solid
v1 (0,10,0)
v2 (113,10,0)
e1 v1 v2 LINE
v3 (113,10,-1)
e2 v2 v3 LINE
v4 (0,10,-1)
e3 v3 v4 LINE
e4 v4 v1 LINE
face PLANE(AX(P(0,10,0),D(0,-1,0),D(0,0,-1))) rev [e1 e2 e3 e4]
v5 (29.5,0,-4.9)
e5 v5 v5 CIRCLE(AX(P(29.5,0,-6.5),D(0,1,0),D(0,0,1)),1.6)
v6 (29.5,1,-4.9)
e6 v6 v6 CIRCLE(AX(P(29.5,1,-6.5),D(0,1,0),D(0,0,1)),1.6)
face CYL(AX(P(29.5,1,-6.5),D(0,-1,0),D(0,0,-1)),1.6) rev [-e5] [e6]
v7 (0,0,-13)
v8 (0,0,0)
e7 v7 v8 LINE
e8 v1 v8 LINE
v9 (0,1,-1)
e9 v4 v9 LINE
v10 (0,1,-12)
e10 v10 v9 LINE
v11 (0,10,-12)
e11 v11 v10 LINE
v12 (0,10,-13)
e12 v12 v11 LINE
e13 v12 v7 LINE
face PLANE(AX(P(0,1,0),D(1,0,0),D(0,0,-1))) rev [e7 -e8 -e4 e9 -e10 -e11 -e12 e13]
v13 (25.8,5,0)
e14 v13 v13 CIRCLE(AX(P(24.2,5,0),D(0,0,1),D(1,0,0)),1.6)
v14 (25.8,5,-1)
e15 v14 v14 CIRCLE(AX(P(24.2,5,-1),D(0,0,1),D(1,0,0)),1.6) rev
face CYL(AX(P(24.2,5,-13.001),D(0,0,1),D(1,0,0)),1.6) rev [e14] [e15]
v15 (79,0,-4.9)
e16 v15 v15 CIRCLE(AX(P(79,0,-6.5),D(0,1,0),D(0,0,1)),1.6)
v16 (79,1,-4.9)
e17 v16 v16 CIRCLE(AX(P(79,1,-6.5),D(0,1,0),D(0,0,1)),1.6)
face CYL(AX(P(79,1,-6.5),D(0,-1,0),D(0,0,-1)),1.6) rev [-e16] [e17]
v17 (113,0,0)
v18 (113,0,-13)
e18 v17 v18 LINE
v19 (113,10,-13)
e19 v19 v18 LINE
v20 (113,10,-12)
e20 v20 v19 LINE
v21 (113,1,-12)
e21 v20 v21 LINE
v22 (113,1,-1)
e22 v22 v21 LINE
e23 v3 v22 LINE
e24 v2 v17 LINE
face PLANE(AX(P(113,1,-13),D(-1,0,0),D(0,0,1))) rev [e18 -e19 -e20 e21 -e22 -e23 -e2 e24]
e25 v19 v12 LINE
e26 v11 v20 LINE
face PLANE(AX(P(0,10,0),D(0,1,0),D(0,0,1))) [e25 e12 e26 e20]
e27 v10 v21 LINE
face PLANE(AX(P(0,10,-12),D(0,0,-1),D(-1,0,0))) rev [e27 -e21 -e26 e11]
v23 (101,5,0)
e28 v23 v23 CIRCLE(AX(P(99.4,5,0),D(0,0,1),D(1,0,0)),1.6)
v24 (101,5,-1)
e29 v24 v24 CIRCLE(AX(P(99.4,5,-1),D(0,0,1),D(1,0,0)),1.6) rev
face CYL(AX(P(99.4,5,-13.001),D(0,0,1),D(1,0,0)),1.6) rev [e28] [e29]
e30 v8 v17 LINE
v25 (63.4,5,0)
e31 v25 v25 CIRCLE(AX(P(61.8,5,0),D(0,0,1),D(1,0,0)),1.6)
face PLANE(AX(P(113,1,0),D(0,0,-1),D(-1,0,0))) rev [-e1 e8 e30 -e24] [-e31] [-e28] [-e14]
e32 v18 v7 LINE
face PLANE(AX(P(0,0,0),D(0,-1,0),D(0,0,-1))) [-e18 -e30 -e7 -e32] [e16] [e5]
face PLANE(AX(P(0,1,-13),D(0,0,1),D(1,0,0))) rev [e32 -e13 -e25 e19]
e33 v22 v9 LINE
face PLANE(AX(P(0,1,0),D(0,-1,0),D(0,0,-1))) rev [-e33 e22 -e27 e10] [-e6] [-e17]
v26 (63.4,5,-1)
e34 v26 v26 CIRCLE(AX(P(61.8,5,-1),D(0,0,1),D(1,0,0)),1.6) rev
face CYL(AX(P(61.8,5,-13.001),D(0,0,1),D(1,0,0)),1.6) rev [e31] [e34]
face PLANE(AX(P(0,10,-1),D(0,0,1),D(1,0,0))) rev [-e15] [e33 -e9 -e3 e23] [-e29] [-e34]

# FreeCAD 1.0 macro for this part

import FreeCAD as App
import Part
import Sketcher
from FreeCAD import Vector

doc = App.newDocument("Part")
body = doc.addObject("PartDesign::Body", "Body")

# Sketch on XZ plane
sketch1 = body.newObject("Sketcher::SketchObject", "Sketch")
sketch1.AttachmentSupport = (doc.getObject("XZ_Plane"), [""])
sketch1.MapMode = "FlatFace"
sketch1.addGeometry([
    Part.LineSegment(Vector(0, -13, 0), Vector(0, 0, 0)),  # 0
    Part.LineSegment(Vector(0, 0, 0), Vector(113, 0, 0)),  # 1
    Part.LineSegment(Vector(113, 0, 0), Vector(113, -13, 0)),  # 2
    Part.LineSegment(Vector(113, -13, 0), Vector(0, -13, 0)),  # 3
    Part.Circle(Vector(29.5, -6.5, 0), Vector(0, 0, 1), 1.6),  # 4
    Part.Circle(Vector(79, -6.5, 0), Vector(0, 0, 1), 1.6),  # 5
], False)
sketch1.addConstraint([
    Sketcher.Constraint("Coincident", 0, 2, 1, 1),
    Sketcher.Constraint("Coincident", 1, 2, 2, 1),
    Sketcher.Constraint("Coincident", 2, 2, 3, 1),
    Sketcher.Constraint("Coincident", 3, 2, 0, 1),
    Sketcher.Constraint("Vertical", 0),
    Sketcher.Constraint("Horizontal", 1),
    Sketcher.Constraint("Vertical", 2),
    Sketcher.Constraint("Horizontal", 3),
    Sketcher.Constraint("Coincident", 0, 2, -1, 1),
    Sketcher.Constraint("Equal", 4, 5),
    Sketcher.Constraint("Horizontal", 4, 3, 5, 3),
    Sketcher.Constraint("Diameter", 4, 3.2),
    Sketcher.Constraint("DistanceX", 1, 1, 1, 2, 113.0),
    Sketcher.Constraint("DistanceY", 0, 1, 0, 2, 13.0),
    Sketcher.Constraint("DistanceX", -1, 1, 5, 3, 79.0),
    Sketcher.Constraint("DistanceX", -1, 1, 4, 3, 29.5),
    Sketcher.Constraint("DistanceY", 4, 3, -1, 1, 6.5),
])
pad1 = body.newObject("PartDesign::Pad", "Pad")
pad1.Profile = sketch1
pad1.Length = 1
pad1.Reversed = True

# Sketch on XZ plane
sketch2 = body.newObject("Sketcher::SketchObject", "Sketch001")
sketch2.AttachmentSupport = (doc.getObject("XZ_Plane"), [""])
sketch2.MapMode = "FlatFace"
sketch2.AttachmentOffset = App.Placement(Vector(0, 0, -1), App.Rotation())
sketch2.addGeometry([
    Part.LineSegment(Vector(0, -13, 0), Vector(0, -12, 0)),  # 0
    Part.LineSegment(Vector(0, -12, 0), Vector(113, -12, 0)),  # 1
    Part.LineSegment(Vector(113, -12, 0), Vector(113, -13, 0)),  # 2
    Part.LineSegment(Vector(113, -13, 0), Vector(0, -13, 0)),  # 3
    Part.LineSegment(Vector(0, -1, 0), Vector(0, 0, 0)),  # 4
    Part.LineSegment(Vector(0, 0, 0), Vector(113, 0, 0)),  # 5
    Part.LineSegment(Vector(113, 0, 0), Vector(113, -1, 0)),  # 6
    Part.LineSegment(Vector(113, -1, 0), Vector(0, -1, 0)),  # 7
], False)
sketch2.addConstraint([
    Sketcher.Constraint("Coincident", 0, 2, 1, 1),
    Sketcher.Constraint("Coincident", 1, 2, 2, 1),
    Sketcher.Constraint("Coincident", 2, 2, 3, 1),
    Sketcher.Constraint("Coincident", 3, 2, 0, 1),
    Sketcher.Constraint("Coincident", 4, 2, 5, 1),
    Sketcher.Constraint("Coincident", 5, 2, 6, 1),
    Sketcher.Constraint("Coincident", 6, 2, 7, 1),
    Sketcher.Constraint("Coincident", 7, 2, 4, 1),
    Sketcher.Constraint("Vertical", 0),
    Sketcher.Constraint("Horizontal", 1),
    Sketcher.Constraint("Vertical", 2),
    Sketcher.Constraint("Horizontal", 3),
    Sketcher.Constraint("Vertical", 4),
    Sketcher.Constraint("Horizontal", 5),
    Sketcher.Constraint("Vertical", 6),
    Sketcher.Constraint("Horizontal", 7),
    Sketcher.Constraint("Coincident", 4, 2, -1, 1),
    Sketcher.Constraint("PointOnObject", 0, 2, -2),
    Sketcher.Constraint("Vertical", 2, 2, 5, 2),
    Sketcher.Constraint("Equal", 2, 4),
    Sketcher.Constraint("DistanceX", 1, 1, 1, 2, 113.0),
    Sketcher.Constraint("DistanceY", 0, 1, 0, 2, 1.0),
    Sketcher.Constraint("DistanceY", 0, 2, -1, 1, 12.0),
])
pad2 = body.newObject("PartDesign::Pad", "Pad001")
pad2.Profile = sketch2
pad2.Length = 9
pad2.Reversed = True

# Sketch on XY plane
sketch3 = body.newObject("Sketcher::SketchObject", "Sketch002")
sketch3.AttachmentSupport = (doc.getObject("XY_Plane"), [""])
sketch3.MapMode = "FlatFace"
sketch3.addGeometry(Part.Circle(Vector(99.4, 5, 0), Vector(0, 0, 1), 1.6), False)
sketch3.addConstraint([
    Sketcher.Constraint("Diameter", 0, 3.2),
    Sketcher.Constraint("DistanceY", -1, 1, 0, 3, 5.0),
    Sketcher.Constraint("DistanceX", -1, 1, 0, 3, 99.4),
])
pocket1 = body.newObject("PartDesign::Pocket", "Pocket")
pocket1.Profile = sketch3
pocket1.Type = "UpToFirst"

# Sketch on XY plane
sketch4 = body.newObject("Sketcher::SketchObject", "Sketch003")
sketch4.AttachmentSupport = (doc.getObject("XY_Plane"), [""])
sketch4.MapMode = "FlatFace"
sketch4.addGeometry(Part.Circle(Vector(61.8, 5, 0), Vector(0, 0, 1), 1.6), False)
sketch4.addConstraint([
    Sketcher.Constraint("Diameter", 0, 3.2),
    Sketcher.Constraint("DistanceY", -1, 1, 0, 3, 5.0),
    Sketcher.Constraint("DistanceX", -1, 1, 0, 3, 61.8),
])
pocket2 = body.newObject("PartDesign::Pocket", "Pocket001")
pocket2.Profile = sketch4
pocket2.Type = "UpToFirst"

# Sketch on XY plane
sketch5 = body.newObject("Sketcher::SketchObject", "Sketch004")
sketch5.AttachmentSupport = (doc.getObject("XY_Plane"), [""])
sketch5.MapMode = "FlatFace"
sketch5.addGeometry(Part.Circle(Vector(24.2, 5, 0), Vector(0, 0, 1), 1.6), False)
sketch5.addConstraint([
    Sketcher.Constraint("Diameter", 0, 3.2),
    Sketcher.Constraint("DistanceY", -1, 1, 0, 3, 5.0),
    Sketcher.Constraint("DistanceX", -1, 1, 0, 3, 24.2),
])
pocket3 = body.newObject("PartDesign::Pocket", "Pocket002")
pocket3.Profile = sketch5
pocket3.Type = "UpToFirst"

doc.recompute()
